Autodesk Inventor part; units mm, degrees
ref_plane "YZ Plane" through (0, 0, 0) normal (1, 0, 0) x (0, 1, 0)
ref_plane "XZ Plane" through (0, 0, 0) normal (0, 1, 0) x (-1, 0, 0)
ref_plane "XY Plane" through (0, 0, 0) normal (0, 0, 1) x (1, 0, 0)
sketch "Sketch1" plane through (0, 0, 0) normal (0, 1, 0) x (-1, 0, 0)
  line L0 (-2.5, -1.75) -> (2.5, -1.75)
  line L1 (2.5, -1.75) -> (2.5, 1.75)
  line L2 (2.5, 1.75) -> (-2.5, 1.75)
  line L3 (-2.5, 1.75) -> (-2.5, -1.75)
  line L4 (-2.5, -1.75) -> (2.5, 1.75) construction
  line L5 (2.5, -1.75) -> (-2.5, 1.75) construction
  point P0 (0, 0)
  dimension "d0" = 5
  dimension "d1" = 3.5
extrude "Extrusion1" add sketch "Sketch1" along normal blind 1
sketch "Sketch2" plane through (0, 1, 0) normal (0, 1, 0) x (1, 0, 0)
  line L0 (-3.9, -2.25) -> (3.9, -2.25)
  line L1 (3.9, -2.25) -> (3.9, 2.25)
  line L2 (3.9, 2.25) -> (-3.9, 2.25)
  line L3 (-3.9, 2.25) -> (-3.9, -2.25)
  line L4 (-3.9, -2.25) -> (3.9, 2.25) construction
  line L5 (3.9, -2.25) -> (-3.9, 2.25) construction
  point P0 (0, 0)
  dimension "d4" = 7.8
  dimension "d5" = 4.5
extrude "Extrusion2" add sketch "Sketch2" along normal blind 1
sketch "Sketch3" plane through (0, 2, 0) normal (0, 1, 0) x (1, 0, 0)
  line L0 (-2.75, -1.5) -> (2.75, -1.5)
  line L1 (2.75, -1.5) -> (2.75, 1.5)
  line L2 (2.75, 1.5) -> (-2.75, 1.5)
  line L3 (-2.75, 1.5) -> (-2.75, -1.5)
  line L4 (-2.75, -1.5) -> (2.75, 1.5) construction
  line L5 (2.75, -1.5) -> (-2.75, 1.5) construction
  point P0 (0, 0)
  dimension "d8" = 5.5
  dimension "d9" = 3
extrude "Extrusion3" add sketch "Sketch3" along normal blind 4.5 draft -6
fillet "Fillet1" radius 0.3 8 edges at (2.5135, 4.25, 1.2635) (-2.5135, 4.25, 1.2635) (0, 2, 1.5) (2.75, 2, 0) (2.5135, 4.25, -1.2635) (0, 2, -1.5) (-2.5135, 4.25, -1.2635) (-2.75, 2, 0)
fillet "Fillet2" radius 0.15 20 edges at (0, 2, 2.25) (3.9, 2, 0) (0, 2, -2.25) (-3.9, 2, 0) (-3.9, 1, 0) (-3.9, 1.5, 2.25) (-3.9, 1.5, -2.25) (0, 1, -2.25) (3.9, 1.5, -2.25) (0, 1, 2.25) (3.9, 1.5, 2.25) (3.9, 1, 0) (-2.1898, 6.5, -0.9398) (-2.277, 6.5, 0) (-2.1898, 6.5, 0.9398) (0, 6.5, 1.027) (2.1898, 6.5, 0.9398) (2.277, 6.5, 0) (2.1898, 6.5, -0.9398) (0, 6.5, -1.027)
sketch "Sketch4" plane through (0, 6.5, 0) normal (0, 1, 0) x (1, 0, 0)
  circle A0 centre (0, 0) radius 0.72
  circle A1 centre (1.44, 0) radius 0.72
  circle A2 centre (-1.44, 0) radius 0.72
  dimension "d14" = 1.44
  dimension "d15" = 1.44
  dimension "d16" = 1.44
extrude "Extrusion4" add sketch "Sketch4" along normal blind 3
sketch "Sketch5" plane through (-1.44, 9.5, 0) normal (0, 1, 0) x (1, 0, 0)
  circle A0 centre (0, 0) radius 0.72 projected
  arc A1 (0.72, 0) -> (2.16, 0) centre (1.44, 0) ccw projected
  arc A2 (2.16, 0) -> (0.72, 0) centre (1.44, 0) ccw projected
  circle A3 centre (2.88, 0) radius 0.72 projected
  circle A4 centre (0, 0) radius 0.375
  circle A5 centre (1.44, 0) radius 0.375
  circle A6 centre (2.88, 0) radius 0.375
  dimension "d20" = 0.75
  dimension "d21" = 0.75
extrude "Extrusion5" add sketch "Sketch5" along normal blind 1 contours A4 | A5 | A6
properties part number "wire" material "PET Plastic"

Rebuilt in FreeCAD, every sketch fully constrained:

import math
import FreeCAD as App
import Part
import Sketcher

V = App.Vector


def edges_at(feature, points):
    """Names of the edges that pass closest to the given points."""
    edges = feature.Shape.Edges
    near = lambda p: min(range(len(edges)), key=lambda i: edges[i].distToShape(Part.Vertex(*p))[0])
    return sorted({f"Edge{near(p) + 1}" for p in points})


def add_polygon(sketch, points):
    """Adds a closed chain of lines whose ends are joined by coincident constraints."""
    first, n = sketch.GeometryCount, len(points)
    for a, b in zip(points, points[1:] + points[:1]):
        sketch.addGeometry(Part.LineSegment(App.Vector(*a, 0), App.Vector(*b, 0)), False)
    for i in range(n):
        sketch.addConstraint(Sketcher.Constraint("Coincident", first + i, 2, first + (i + 1) % n, 1))

doc = App.newDocument("Part")
body = doc.addObject("PartDesign::Body", "Body")

# Sketch on XZ plane
sketch1 = body.newObject("Sketcher::SketchObject", "Sketch")
sketch1.AttachmentSupport = (doc.getObject("XZ_Plane"), [""])
sketch1.MapMode = "FlatFace"
add_polygon(sketch1, [(2.5, 1.75), (2.5, -1.75), (-2.5, -1.75), (-2.5, 1.75)])  # lines 0-3
sketch1.addConstraint(Sketcher.Constraint("Vertical", 0))
sketch1.addConstraint(Sketcher.Constraint("Horizontal", 1))
sketch1.addConstraint(Sketcher.Constraint("Vertical", 2))
sketch1.addConstraint(Sketcher.Constraint("Horizontal", 3))
sketch1.addConstraint(Sketcher.Constraint("Symmetric", 0, 2, 2, 2, -1, 1))
sketch1.addConstraint(Sketcher.Constraint("DistanceX", 1, 2, 1, 1, 5.0))
sketch1.addConstraint(Sketcher.Constraint("DistanceY", 0, 2, 0, 1, 3.5))
pad1 = body.newObject("PartDesign::Pad", "Pad")
pad1.Profile = sketch1
pad1.Length = 1
pad1.Reversed = True

# Sketch on XZ plane
sketch2 = body.newObject("Sketcher::SketchObject", "Sketch001")
sketch2.AttachmentSupport = (doc.getObject("XZ_Plane"), [""])
sketch2.MapMode = "FlatFace"
sketch2.AttachmentOffset = App.Placement(V(0, 0, -1), App.Rotation())
add_polygon(sketch2, [(-3.9, -2.25), (-3.9, 2.25), (3.9, 2.25), (3.9, -2.25)])  # lines 0-3
sketch2.addConstraint(Sketcher.Constraint("Vertical", 0))
sketch2.addConstraint(Sketcher.Constraint("Horizontal", 1))
sketch2.addConstraint(Sketcher.Constraint("Vertical", 2))
sketch2.addConstraint(Sketcher.Constraint("Horizontal", 3))
sketch2.addConstraint(Sketcher.Constraint("Symmetric", 0, 2, 2, 2, -1, 1))
sketch2.addConstraint(Sketcher.Constraint("DistanceX", 1, 1, 1, 2, 7.8))
sketch2.addConstraint(Sketcher.Constraint("DistanceY", 0, 1, 0, 2, 4.5))
pad2 = body.newObject("PartDesign::Pad", "Pad001")
pad2.Profile = sketch2
pad2.Length = 1
pad2.Reversed = True

# Sketch on XZ plane
sketch3 = body.newObject("Sketcher::SketchObject", "Sketch002")
sketch3.AttachmentSupport = (doc.getObject("XZ_Plane"), [""])
sketch3.MapMode = "FlatFace"
sketch3.AttachmentOffset = App.Placement(V(0, 0, -2), App.Rotation())
add_polygon(sketch3, [(-2.75, -1.5), (-2.75, 1.5), (2.75, 1.5), (2.75, -1.5)])  # lines 0-3
sketch3.addConstraint(Sketcher.Constraint("Vertical", 0))
sketch3.addConstraint(Sketcher.Constraint("Horizontal", 1))
sketch3.addConstraint(Sketcher.Constraint("Vertical", 2))
sketch3.addConstraint(Sketcher.Constraint("Horizontal", 3))
sketch3.addConstraint(Sketcher.Constraint("Symmetric", 0, 2, 2, 2, -1, 1))
sketch3.addConstraint(Sketcher.Constraint("DistanceY", 0, 1, 0, 2, 3.0))
sketch3.addConstraint(Sketcher.Constraint("DistanceX", 1, 1, 1, 2, 5.5))
pad3 = body.newObject("PartDesign::Pad", "Pad002")
pad3.Profile = sketch3
pad3.Length = 4.5
pad3.Reversed = True
pad3.TaperAngle = -6
doc.recompute()

fillet = body.newObject("PartDesign::Fillet", "Fillet")
fillet.Base = (pad3, edges_at(pad3, [
    (2.514, 4.25, 1.264),
    (-2.514, 4.25, 1.264),
    (0, 2, 1.5),
    (2.75, 2, 0),
    (2.514, 4.25, -1.264),
    (0, 2, -1.5),
    (-2.514, 4.25, -1.264),
    (-2.75, 2, 0),
]))
fillet.Radius = 0.3
doc.recompute()

fillet2 = body.newObject("PartDesign::Fillet", "Fillet001")
fillet2.Base = (fillet, edges_at(fillet, [
    (0, 2, 2.25),
    (3.9, 2, 0),
    (0, 2, -2.25),
    (-3.9, 2, 0),
    (-3.9, 1, 0),
    (-3.9, 1.5, 2.25),
    (-3.9, 1.5, -2.25),
    (0, 1, -2.25),
    (3.9, 1.5, -2.25),
    (0, 1, 2.25),
    (3.9, 1.5, 2.25),
    (3.9, 1, 0),
    (-2.19, 6.5, -0.94),
    (-2.277, 6.5, 0),
    (-2.19, 6.5, 0.94),
    (0, 6.5, 1.027),
    (2.19, 6.5, 0.94),
    (2.277, 6.5, 0),
    (2.19, 6.5, -0.94),
    (0, 6.5, -1.027),
]))
fillet2.Radius = 0.15

# Sketch on XZ plane
sketch4 = body.newObject("Sketcher::SketchObject", "Sketch003")
sketch4.AttachmentSupport = (doc.getObject("XZ_Plane"), [""])
sketch4.MapMode = "FlatFace"
sketch4.AttachmentOffset = App.Placement(V(0, 0, -6.5), App.Rotation())
sketch4.addGeometry(Part.ArcOfCircle(Part.Circle(V(0, 0, 0), V(0, 0, 1), 0.72), math.radians(0), math.radians(180)), False)
sketch4.addGeometry(Part.ArcOfCircle(Part.Circle(V(0, 0, 0), V(0, 0, 1), 0.72), math.radians(180), math.radians(360)), False)
sketch4.addGeometry(Part.Circle(V(-1.44, 0, 0), V(0, 0, 1), 0.72), False)
sketch4.addGeometry(Part.Circle(V(1.44, 0, 0), V(0, 0, 1), 0.72), False)
sketch4.addConstraint(Sketcher.Constraint("Tangent", 0, 1, 1, 2))
sketch4.addConstraint(Sketcher.Constraint("Coincident", 1, 1, 0, 2))
sketch4.addConstraint(Sketcher.Constraint("Coincident", 0, 3, -1, 1))
sketch4.addConstraint(Sketcher.Constraint("Equal", 1, 2))
sketch4.addConstraint(Sketcher.Constraint("Equal", 2, 3))
sketch4.addConstraint(Sketcher.Constraint("Symmetric", 2, 3, 3, 3, -1, 1))
sketch4.addConstraint(Sketcher.Constraint("PointOnObject", 2, 3, -1))
sketch4.addConstraint(Sketcher.Constraint("PointOnObject", 0, 1, -1))
sketch4.addConstraint(Sketcher.Constraint("PointOnObject", 1, 1, -1))
sketch4.addConstraint(Sketcher.Constraint("Diameter", 2, 1.44))
sketch4.addConstraint(Sketcher.Constraint("DistanceX", 2, 3, -1, 1, 1.44))
pad4 = body.newObject("PartDesign::Pad", "Pad003")
pad4.Profile = sketch4
pad4.Length = 3
pad4.Reversed = True

# Sketch on XZ plane
sketch5 = body.newObject("Sketcher::SketchObject", "Sketch004")
sketch5.AttachmentSupport = (doc.getObject("XZ_Plane"), [""])
sketch5.MapMode = "FlatFace"
sketch5.AttachmentOffset = App.Placement(V(0, 0, -9.5), App.Rotation())
sketch5.addGeometry(Part.Circle(V(-1.44, 0, 0), V(0, 0, 1), 0.375), False)
sketch5.addGeometry(Part.Circle(V(0, 0, 0), V(0, 0, 1), 0.375), False)
sketch5.addGeometry(Part.Circle(V(1.44, 0, 0), V(0, 0, 1), 0.375), False)
sketch5.addConstraint(Sketcher.Constraint("Coincident", 1, 3, -1, 1))
sketch5.addConstraint(Sketcher.Constraint("Equal", 0, 1))
sketch5.addConstraint(Sketcher.Constraint("Equal", 1, 2))
sketch5.addConstraint(Sketcher.Constraint("Symmetric", 0, 3, 2, 3, -1, 1))
sketch5.addConstraint(Sketcher.Constraint("PointOnObject", 0, 3, -1))
sketch5.addConstraint(Sketcher.Constraint("Diameter", 0, 0.75))
sketch5.addConstraint(Sketcher.Constraint("DistanceX", 0, 3, -1, 1, 1.44))
pad5 = body.newObject("PartDesign::Pad", "Pad004")
pad5.Profile = sketch5
pad5.Length = 1
pad5.Reversed = True

doc.recompute()
